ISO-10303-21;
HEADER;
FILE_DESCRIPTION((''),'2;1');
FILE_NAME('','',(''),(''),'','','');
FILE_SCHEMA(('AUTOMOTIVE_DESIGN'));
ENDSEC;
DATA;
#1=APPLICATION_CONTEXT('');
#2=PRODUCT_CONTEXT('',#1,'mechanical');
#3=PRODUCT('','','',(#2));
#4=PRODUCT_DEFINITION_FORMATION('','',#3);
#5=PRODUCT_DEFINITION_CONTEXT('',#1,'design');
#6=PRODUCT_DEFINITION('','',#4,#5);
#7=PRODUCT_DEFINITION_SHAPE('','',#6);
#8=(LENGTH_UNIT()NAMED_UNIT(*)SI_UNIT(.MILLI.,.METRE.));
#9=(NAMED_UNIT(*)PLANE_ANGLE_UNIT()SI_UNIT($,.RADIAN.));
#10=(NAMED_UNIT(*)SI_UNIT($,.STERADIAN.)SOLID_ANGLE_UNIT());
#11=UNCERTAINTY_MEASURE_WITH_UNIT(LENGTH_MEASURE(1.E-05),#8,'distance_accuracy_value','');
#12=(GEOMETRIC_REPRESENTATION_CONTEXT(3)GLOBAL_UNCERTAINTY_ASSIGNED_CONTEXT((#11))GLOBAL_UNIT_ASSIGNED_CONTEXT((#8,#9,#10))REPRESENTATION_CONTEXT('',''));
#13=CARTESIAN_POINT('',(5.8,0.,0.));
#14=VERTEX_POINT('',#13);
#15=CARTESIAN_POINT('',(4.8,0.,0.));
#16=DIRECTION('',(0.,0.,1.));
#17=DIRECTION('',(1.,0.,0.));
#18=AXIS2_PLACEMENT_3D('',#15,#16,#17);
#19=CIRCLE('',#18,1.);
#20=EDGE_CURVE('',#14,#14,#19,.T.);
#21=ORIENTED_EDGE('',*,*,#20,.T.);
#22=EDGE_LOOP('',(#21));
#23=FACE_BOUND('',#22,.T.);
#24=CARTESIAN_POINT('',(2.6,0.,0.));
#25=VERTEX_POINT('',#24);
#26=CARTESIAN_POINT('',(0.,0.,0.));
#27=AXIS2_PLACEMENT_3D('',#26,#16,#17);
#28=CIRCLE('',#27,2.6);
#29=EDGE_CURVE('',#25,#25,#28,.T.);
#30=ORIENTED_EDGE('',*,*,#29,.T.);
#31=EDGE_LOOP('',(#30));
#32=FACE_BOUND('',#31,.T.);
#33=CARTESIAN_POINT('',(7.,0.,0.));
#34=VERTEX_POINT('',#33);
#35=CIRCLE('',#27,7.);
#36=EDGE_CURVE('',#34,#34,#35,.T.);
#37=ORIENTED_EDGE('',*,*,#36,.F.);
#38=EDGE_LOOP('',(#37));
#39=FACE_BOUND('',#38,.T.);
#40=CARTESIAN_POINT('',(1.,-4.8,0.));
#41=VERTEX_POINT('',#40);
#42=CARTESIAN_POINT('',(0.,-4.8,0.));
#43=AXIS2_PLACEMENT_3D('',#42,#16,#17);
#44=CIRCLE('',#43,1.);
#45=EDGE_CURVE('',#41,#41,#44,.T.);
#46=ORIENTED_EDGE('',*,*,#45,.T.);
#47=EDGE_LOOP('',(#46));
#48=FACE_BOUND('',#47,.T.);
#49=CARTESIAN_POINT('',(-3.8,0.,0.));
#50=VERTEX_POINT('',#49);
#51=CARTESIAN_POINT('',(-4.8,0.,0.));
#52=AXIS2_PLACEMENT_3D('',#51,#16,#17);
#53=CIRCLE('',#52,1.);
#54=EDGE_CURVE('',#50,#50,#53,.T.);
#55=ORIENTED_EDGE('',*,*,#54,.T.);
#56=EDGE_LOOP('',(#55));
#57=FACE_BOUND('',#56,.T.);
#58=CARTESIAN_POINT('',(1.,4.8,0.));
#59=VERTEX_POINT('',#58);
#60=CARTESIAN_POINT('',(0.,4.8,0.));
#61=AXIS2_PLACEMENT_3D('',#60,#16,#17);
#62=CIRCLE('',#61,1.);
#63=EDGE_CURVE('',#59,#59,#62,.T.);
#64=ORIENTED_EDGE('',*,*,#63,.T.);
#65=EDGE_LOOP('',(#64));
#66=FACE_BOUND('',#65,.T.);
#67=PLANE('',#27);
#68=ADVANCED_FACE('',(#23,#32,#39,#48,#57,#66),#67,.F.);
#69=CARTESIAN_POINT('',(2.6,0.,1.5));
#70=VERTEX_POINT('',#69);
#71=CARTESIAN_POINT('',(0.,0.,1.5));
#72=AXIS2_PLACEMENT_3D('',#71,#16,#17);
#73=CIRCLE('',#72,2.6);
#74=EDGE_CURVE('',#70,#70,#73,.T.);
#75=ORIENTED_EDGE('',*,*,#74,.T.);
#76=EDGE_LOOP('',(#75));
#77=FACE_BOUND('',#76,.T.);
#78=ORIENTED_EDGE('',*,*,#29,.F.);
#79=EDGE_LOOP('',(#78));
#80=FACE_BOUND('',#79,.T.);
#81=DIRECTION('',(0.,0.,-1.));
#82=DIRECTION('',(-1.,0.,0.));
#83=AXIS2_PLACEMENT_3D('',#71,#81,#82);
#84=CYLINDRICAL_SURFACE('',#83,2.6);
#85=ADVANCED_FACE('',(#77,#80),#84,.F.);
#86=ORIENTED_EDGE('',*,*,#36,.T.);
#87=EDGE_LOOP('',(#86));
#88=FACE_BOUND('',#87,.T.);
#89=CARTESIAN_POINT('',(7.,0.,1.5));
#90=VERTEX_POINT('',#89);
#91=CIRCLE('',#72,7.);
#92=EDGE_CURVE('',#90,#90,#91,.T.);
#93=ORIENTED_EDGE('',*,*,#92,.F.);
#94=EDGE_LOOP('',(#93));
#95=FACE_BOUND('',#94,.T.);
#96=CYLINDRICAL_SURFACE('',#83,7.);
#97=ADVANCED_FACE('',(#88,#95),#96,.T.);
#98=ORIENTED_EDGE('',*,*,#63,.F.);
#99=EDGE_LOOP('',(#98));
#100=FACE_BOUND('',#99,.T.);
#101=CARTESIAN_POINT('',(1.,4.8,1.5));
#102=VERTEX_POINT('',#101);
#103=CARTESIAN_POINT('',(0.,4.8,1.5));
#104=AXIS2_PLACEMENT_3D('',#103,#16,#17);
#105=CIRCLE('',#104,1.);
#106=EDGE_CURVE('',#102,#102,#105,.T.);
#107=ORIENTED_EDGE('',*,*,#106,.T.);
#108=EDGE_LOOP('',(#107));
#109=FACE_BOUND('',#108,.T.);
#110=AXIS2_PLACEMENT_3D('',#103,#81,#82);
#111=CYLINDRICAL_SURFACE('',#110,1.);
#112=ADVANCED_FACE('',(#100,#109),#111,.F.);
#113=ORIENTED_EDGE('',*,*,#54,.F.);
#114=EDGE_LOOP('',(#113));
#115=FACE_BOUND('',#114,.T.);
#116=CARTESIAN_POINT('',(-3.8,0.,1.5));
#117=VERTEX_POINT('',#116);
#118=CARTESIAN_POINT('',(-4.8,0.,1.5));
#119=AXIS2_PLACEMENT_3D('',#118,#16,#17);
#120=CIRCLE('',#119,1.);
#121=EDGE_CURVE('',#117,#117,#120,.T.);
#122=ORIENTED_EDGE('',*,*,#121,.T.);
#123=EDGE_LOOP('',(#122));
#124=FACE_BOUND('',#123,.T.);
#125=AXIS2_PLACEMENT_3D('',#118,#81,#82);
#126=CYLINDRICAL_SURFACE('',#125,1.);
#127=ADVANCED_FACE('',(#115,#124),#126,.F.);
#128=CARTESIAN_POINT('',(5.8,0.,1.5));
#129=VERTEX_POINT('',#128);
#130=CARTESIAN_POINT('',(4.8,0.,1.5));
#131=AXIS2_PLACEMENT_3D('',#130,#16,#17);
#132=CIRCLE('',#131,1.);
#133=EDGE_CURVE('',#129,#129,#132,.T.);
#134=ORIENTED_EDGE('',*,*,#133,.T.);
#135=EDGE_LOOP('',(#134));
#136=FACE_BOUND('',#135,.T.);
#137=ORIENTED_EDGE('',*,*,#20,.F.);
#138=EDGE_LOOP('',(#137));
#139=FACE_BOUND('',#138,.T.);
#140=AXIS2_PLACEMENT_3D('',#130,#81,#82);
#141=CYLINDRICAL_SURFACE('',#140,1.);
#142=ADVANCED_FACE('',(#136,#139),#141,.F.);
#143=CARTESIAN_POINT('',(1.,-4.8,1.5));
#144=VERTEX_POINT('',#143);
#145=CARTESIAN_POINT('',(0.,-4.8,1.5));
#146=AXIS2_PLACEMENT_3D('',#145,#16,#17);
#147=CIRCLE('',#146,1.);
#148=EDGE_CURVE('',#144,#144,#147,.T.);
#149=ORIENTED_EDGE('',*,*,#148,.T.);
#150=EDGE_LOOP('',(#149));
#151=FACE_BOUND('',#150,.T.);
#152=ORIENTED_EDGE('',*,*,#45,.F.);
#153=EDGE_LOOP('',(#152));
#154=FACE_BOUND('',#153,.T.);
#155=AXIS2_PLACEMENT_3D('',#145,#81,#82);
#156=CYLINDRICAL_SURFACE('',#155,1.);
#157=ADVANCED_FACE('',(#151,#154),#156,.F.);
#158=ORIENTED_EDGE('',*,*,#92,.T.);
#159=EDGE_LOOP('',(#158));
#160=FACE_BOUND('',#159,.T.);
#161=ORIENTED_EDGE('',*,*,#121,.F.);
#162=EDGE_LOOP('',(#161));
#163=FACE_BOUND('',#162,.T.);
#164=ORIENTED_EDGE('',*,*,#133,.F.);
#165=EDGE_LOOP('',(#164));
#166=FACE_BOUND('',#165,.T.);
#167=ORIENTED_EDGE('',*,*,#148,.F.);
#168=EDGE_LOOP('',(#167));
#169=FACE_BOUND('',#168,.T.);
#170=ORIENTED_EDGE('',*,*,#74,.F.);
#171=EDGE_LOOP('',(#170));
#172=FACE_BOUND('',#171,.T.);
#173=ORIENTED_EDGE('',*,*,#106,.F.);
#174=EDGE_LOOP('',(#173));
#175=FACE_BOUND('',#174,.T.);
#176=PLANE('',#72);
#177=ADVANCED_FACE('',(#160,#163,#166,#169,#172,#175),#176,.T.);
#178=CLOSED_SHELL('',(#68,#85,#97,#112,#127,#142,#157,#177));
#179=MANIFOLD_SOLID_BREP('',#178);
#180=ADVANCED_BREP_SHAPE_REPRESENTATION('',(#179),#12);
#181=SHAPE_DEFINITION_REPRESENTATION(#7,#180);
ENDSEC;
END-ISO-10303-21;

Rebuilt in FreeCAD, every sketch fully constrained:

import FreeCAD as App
import Part
import Sketcher

doc = App.newDocument("Part")
body = doc.addObject("PartDesign::Body", "Body")

# Sketch on XY plane
sketch1 = doc.addObject("Sketcher::SketchObject", "Sketch")
body.addObject(sketch1)
sketch1.AttachmentSupport = (doc.XY_Plane, [""])
sketch1.MapMode = "FlatFace"
sketch1.addGeometry([
    Part.Circle(App.Vector(0, 0, 0), App.Vector(0, 0, 1), 7),  # 0
    Part.Circle(App.Vector(0, -4.8, 0), App.Vector(0, 0, 1), 1),  # 1
    Part.Circle(App.Vector(-4.8, 0, 0), App.Vector(0, 0, 1), 1),  # 2
    Part.Circle(App.Vector(0, 0, 0), App.Vector(0, 0, 1), 2.6),  # 3
    Part.Circle(App.Vector(4.8, 0, 0), App.Vector(0, 0, 1), 1),  # 4
    Part.Circle(App.Vector(0, 4.8, 0), App.Vector(0, 0, 1), 1),  # 5
], False)
sketch1.addConstraint([
    Sketcher.Constraint("Coincident", 0, 3, -1, 1),
    Sketcher.Constraint("Coincident", 3, 3, -1, 1),
    Sketcher.Constraint("Equal", 1, 2),
    Sketcher.Constraint("Equal", 2, 4),
    Sketcher.Constraint("Equal", 4, 5),
    Sketcher.Constraint("Symmetric", 2, 3, 4, 3, -1, 1),
    Sketcher.Constraint("Symmetric", 1, 3, 5, 3, -1, 1),
    Sketcher.Constraint("PointOnObject", 1, 3, -2),
    Sketcher.Constraint("PointOnObject", 2, 3, -1),
    Sketcher.Constraint("Diameter", 0, 14.0),
    Sketcher.Constraint("Diameter", 1, 2.0),
    Sketcher.Constraint("Diameter", 3, 5.2),
    Sketcher.Constraint("DistanceY", 1, 3, -1, 1, 4.8),
    Sketcher.Constraint("DistanceX", 2, 3, -1, 1, 4.8),
])
pad1 = doc.addObject("PartDesign::Pad", "Pad")
body.addObject(pad1)
pad1.Profile = sketch1
pad1.Length = 1.5

doc.recompute()
